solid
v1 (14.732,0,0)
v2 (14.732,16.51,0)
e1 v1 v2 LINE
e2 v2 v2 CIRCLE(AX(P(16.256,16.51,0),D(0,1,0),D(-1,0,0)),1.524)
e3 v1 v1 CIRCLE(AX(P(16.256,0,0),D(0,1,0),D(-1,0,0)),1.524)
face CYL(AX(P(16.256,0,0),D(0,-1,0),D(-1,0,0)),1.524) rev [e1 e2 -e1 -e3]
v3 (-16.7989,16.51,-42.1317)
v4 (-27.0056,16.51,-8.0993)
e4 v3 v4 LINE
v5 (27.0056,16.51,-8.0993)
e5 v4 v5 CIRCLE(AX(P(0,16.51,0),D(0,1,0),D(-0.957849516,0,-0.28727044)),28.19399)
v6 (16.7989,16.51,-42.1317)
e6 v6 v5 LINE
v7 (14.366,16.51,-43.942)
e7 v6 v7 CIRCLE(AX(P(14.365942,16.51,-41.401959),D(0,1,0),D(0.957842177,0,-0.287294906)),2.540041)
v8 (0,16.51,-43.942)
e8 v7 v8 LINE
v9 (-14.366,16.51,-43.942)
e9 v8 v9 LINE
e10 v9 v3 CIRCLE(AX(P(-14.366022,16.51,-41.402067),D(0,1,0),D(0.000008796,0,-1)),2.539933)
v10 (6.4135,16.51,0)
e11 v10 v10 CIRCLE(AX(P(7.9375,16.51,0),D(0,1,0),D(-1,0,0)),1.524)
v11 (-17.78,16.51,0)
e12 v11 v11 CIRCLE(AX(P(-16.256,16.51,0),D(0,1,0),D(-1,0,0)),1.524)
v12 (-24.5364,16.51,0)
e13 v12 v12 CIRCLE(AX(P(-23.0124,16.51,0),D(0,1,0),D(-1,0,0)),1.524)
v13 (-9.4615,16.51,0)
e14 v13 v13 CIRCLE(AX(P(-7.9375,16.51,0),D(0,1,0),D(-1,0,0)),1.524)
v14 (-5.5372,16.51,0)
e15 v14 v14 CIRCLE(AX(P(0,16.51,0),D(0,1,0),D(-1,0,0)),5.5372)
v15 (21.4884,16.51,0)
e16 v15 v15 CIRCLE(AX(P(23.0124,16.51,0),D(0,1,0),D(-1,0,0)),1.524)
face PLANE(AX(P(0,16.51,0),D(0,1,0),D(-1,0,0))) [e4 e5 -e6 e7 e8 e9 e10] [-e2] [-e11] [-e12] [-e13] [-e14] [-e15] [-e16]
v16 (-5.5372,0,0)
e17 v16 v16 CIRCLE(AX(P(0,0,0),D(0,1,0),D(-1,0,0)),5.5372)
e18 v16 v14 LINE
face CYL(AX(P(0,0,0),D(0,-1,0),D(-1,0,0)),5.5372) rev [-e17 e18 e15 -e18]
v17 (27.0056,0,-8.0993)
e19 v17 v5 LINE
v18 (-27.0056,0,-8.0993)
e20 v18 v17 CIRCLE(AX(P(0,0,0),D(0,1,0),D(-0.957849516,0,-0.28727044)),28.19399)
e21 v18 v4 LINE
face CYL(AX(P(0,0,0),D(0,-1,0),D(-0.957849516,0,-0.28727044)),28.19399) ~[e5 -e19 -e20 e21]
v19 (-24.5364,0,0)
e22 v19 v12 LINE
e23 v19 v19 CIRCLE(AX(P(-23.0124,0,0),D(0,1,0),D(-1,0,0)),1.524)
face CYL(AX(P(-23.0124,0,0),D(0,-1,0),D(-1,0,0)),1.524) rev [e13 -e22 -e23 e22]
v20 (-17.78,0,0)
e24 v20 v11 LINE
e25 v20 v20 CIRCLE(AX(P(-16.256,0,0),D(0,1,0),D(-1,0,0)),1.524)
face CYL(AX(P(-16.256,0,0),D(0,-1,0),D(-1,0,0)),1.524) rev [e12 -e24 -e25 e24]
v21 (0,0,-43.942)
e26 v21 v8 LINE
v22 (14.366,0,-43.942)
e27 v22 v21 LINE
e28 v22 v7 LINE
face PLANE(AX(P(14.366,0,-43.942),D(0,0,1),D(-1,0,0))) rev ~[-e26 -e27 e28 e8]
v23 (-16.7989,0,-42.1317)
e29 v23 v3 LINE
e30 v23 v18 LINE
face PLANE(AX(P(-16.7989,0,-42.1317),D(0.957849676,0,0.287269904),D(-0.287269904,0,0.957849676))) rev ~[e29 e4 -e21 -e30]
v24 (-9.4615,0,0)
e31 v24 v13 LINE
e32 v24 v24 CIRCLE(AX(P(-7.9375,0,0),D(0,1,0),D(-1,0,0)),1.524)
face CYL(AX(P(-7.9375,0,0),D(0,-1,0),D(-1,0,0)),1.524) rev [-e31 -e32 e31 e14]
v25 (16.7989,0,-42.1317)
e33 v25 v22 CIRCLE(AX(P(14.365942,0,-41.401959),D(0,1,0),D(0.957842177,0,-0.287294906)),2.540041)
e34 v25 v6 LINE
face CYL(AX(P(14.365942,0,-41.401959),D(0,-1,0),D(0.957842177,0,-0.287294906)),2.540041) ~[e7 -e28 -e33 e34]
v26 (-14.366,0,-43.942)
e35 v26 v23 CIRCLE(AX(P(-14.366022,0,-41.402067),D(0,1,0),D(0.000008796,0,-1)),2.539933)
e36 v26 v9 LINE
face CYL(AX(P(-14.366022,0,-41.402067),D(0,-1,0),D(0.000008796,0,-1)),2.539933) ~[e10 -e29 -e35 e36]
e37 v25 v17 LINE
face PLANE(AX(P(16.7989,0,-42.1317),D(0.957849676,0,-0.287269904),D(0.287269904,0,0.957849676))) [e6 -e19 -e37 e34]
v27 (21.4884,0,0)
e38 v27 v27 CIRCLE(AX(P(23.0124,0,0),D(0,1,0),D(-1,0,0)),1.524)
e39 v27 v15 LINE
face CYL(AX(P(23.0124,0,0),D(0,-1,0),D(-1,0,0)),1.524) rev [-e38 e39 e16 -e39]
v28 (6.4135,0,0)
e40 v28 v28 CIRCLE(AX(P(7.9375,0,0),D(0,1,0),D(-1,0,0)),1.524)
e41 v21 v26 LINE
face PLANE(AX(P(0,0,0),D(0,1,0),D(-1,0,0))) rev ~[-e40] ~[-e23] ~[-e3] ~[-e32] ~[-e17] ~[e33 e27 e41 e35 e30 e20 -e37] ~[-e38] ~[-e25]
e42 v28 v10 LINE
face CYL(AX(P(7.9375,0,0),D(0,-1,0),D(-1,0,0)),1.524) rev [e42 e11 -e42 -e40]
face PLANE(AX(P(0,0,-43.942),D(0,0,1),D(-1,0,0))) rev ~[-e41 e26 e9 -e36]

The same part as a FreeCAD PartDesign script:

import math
import FreeCAD as App
import Part
import Sketcher

V = App.Vector
Q = App.Units.Quantity

doc = App.newDocument("Part")
params = doc.addObject("Spreadsheet::Sheet", "Params")
for row, (alias, value) in enumerate([
    ("sketch1_radius", "0.1 in"),
    ("sketch1_diameter", "0.12 in"),
    ("sketch1_radius2", "1.11 in"),
    ("sketch1_diameter2", "0.436 in"),
    ("pad1_length", "0.65 in"),
], start=1):
    params.set(f"A{row}", alias)
    params.set(f"B{row}", "=" + value)
    params.setAlias(f"B{row}", alias)

body = doc.addObject("PartDesign::Body", "Body")

# Sketch on XZ plane
sketch1 = doc.addObject("Sketcher::SketchObject", "Sketch")
body.addObject(sketch1)
sketch1.AttachmentSupport = (doc.XZ_Plane, [""])
sketch1.MapMode = "FlatFace"
sketch1.addGeometry([
    Part.LineSegment(V(-16.8, -42.1, 0), V(-27, -8.1, 0)),  # 0
    Part.ArcOfCircle(Part.Circle(V(0, 0, 0), V(0, 0, 1), 28.2), math.radians(-17), math.radians(197)),  # 1
    Part.LineSegment(V(27, -8.1, 0), V(16.8, -42.1, 0)),  # 2
    Part.ArcOfCircle(Part.Circle(V(14.4, -41.4, 0), V(0, 0, 1), 2.5), math.radians(-90), math.radians(-17)),  # 3
    Part.LineSegment(V(14.4, -43.9, 0), V(-14.4, -43.9, 0)),  # 4
    Part.ArcOfCircle(Part.Circle(V(-14.4, -41.4, 0), V(0, 0, 1), 2.5), math.radians(-163), math.radians(-90)),  # 5
    Part.Circle(V(23, 0, 0), V(0, 0, 1), 1.5),  # 6
    Part.Circle(V(16.3, 0, 0), V(0, 0, 1), 1.5),  # 7
    Part.Circle(V(7.9, 0, 0), V(0, 0, 1), 1.5),  # 8
    Part.Circle(V(0, 0, 0), V(0, 0, 1), 5.5),  # 9
    Part.Circle(V(-7.9, 0, 0), V(0, 0, 1), 1.5),  # 10
    Part.Circle(V(-16.3, 0, 0), V(0, 0, 1), 1.5),  # 11
    Part.Circle(V(-23, 0, 0), V(0, 0, 1), 1.5),  # 12
], False)
sketch1.addConstraint([
    Sketcher.Constraint("Tangent", 0, 2, 1, 2),
    Sketcher.Constraint("Tangent", 1, 1, 2, 1),
    Sketcher.Constraint("Tangent", 2, 2, 3, 2),
    Sketcher.Constraint("Tangent", 3, 1, 4, 1),
    Sketcher.Constraint("Tangent", 4, 2, 5, 2),
    Sketcher.Constraint("Tangent", 5, 1, 0, 1),
    Sketcher.Constraint("Horizontal", 4),
    Sketcher.Constraint("Coincident", 1, 3, -1, 1),
    Sketcher.Constraint("Coincident", 9, 3, -1, 1),
    Sketcher.Constraint("Equal", 3, 5),
    Sketcher.Constraint("Equal", 6, 7),
    Sketcher.Constraint("Equal", 7, 8),
    Sketcher.Constraint("Equal", 8, 10),
    Sketcher.Constraint("Equal", 10, 11),
    Sketcher.Constraint("Equal", 11, 12),
    Sketcher.Constraint("Symmetric", 8, 3, 10, 3, -1, 1),
    Sketcher.Constraint("Symmetric", 7, 3, 11, 3, -1, 1),
    Sketcher.Constraint("Symmetric", 6, 3, 12, 3, -1, 1),
    Sketcher.Constraint("PointOnObject", 6, 3, -1),
    Sketcher.Constraint("PointOnObject", 7, 3, -1),
    Sketcher.Constraint("PointOnObject", 8, 3, -1),
    Sketcher.Constraint("Horizontal", 0, 2, 1, 1),
    Sketcher.Constraint("Radius", 3, Q("0.1 in")),
    Sketcher.Constraint("Diameter", 6, Q("0.12 in")),
    Sketcher.Constraint("Radius", 1, Q("1.11 in")),
    Sketcher.Constraint("Diameter", 9, Q("0.436 in")),
    Sketcher.Constraint("DistanceX", -1, 1, 7, 3, Q("0.64 in")),
    Sketcher.Constraint("DistanceY", 3, 1, -1, 1, Q("1.73 in")),
    Sketcher.Constraint("DistanceX", -1, 1, 6, 3, Q("0.906 in")),
    Sketcher.Constraint("DistanceX", -1, 1, 8, 3, Q("0.3125 in")),
    Sketcher.Constraint("DistanceX", 4, 2, 4, 1, 28.732),
])
sketch1.setExpression("Constraints[22]", "Params.sketch1_radius")
sketch1.setExpression("Constraints[23]", "Params.sketch1_diameter")
sketch1.setExpression("Constraints[24]", "Params.sketch1_radius2")
sketch1.setExpression("Constraints[25]", "Params.sketch1_diameter2")
pad1 = doc.addObject("PartDesign::Pad", "Pad")
body.addObject(pad1)
pad1.Profile = sketch1
pad1.setExpression("Length", "Params.pad1_length")
pad1.Reversed = True

doc.recompute()
